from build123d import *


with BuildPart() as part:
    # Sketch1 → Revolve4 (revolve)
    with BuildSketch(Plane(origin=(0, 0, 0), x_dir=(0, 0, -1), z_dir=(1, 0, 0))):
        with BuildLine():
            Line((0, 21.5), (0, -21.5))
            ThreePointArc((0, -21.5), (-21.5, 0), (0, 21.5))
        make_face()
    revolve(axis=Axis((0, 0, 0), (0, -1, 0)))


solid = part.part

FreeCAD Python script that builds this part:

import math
import FreeCAD as App
import Part
import Sketcher
Q = App.Units.Quantity

doc = App.newDocument("Part")
params = doc.addObject("Spreadsheet::Sheet", "Params")
for row, (alias, value) in enumerate([
    ("sketch1_radius", "21.5 mm"),
    ("revolution_angle", "360 deg"),
], start=1):
    params.set(f"A{row}", alias)
    params.set(f"B{row}", "=" + value)
    params.setAlias(f"B{row}", alias)

body = doc.addObject("PartDesign::Body", "Body")

# Sketch on YZ plane
sketch1 = body.newObject("Sketcher::SketchObject", "Sketch")
sketch1.AttachmentSupport = (doc.getObject("YZ_Plane"), [""])
sketch1.MapMode = "FlatFace"
sketch1.addGeometry(Part.LineSegment(App.Vector(-21.5, 0, 0), App.Vector(21.5, 0, 0)), False)
sketch1.addGeometry(Part.ArcOfCircle(Part.Circle(App.Vector(0, 0, 0), App.Vector(0, 0, 1), 21.5), math.radians(0), math.radians(180)), False)
sketch1.addConstraint(Sketcher.Constraint("Coincident", 0, 1, 1, 2))
sketch1.addConstraint(Sketcher.Constraint("Coincident", 1, 1, 0, 2))
sketch1.addConstraint(Sketcher.Constraint("Horizontal", 0))
sketch1.addConstraint(Sketcher.Constraint("Coincident", 1, 3, -1, 1))
sketch1.addConstraint(Sketcher.Constraint("PointOnObject", 0, 1, -1))
sketch1.addConstraint(Sketcher.Constraint("Radius", 1, Q("21.5 mm")))
sketch1.setExpression("Constraints[5]", "Params.sketch1_radius")
revolution = body.newObject("PartDesign::Revolution", "Revolution")
revolution.Profile = sketch1
revolution.ReferenceAxis = (sketch1, ["H_Axis"])
revolution.setExpression("Angle", "Params.revolution_angle")

doc.recompute()
